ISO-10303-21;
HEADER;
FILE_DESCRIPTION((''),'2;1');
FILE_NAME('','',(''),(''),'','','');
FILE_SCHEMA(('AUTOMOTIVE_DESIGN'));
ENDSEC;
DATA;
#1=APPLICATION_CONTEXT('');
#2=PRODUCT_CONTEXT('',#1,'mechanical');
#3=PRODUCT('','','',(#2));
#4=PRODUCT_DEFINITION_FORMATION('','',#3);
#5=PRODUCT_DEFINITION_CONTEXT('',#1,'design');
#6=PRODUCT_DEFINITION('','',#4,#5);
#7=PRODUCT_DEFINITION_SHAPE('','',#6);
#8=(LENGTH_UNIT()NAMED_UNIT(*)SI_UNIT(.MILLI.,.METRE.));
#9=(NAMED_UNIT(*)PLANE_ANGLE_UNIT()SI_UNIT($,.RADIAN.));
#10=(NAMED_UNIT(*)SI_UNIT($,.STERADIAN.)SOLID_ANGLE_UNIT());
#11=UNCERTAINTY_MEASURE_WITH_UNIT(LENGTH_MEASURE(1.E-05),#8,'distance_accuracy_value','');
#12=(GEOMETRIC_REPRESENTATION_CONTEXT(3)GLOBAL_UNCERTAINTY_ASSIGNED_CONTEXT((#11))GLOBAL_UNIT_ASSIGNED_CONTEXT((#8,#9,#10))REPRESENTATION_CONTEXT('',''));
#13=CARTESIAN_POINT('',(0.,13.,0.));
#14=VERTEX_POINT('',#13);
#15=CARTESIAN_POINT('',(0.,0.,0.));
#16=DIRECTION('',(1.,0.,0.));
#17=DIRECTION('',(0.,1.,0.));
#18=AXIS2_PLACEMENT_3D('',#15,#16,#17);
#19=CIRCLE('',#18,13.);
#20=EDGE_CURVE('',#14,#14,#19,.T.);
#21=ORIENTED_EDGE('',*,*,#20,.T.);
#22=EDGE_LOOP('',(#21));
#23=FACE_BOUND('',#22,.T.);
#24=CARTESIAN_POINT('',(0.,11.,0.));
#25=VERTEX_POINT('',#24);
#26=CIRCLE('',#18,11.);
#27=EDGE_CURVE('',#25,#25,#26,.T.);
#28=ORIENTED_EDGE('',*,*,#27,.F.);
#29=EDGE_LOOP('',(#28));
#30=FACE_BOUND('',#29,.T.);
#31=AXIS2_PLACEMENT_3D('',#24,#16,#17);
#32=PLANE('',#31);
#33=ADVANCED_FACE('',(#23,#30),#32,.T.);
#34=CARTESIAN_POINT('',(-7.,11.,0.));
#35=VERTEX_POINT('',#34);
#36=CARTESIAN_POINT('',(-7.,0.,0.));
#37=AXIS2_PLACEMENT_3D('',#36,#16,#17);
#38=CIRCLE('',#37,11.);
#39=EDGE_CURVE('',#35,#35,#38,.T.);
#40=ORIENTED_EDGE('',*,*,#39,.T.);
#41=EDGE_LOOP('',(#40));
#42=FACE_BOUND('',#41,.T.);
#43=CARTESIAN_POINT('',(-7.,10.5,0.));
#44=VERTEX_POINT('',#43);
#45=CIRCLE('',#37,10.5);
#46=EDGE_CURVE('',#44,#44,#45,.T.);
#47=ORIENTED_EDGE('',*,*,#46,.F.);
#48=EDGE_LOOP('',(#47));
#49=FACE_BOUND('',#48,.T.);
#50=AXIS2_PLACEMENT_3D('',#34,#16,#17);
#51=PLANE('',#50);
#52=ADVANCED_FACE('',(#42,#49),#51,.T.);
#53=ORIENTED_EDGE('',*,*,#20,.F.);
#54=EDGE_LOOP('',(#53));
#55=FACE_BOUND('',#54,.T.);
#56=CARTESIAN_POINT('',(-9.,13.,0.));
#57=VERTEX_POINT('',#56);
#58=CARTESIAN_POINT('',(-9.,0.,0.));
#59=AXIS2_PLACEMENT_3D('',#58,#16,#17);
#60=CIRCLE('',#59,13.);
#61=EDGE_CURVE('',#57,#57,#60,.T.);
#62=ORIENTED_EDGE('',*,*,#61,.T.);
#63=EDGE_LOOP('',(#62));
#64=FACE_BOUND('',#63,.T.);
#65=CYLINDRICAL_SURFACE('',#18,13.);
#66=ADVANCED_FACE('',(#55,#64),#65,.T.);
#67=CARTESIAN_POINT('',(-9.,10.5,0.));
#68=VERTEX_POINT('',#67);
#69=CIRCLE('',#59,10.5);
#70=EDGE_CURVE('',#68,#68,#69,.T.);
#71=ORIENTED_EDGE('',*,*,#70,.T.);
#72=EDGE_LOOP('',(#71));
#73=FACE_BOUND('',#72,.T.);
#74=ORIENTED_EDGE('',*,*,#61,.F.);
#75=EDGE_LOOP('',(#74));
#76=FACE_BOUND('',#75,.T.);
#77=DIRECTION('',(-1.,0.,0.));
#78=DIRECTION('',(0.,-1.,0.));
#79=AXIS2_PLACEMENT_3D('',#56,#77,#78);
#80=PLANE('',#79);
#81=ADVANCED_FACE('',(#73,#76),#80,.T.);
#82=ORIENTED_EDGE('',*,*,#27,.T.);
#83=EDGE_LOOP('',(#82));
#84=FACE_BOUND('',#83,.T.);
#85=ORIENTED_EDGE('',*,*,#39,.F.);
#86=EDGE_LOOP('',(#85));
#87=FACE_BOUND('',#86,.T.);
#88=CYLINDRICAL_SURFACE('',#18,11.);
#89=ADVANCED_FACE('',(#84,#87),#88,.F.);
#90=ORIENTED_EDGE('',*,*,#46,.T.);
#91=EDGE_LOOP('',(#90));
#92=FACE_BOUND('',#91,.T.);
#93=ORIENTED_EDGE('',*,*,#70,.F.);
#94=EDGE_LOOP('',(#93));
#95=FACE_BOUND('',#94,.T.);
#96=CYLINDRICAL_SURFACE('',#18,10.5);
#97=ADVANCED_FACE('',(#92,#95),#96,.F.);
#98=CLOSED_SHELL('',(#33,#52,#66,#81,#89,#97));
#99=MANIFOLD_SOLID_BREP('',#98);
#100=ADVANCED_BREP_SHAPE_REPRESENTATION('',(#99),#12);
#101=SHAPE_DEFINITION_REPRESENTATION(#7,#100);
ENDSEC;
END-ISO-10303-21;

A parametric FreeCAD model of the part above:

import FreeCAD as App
import Part
import Sketcher

V = App.Vector
Q = App.Units.Quantity


def add_polygon(sketch, points):
    """Adds a closed chain of lines whose ends are joined by coincident constraints."""
    first, n = sketch.GeometryCount, len(points)
    for a, b in zip(points, points[1:] + points[:1]):
        sketch.addGeometry(Part.LineSegment(App.Vector(*a, 0), App.Vector(*b, 0)), False)
    for i in range(n):
        sketch.addConstraint(Sketcher.Constraint("Coincident", first + i, 2, first + (i + 1) % n, 1))

doc = App.newDocument("Part")
params = doc.addObject("Spreadsheet::Sheet", "Params")
for row, (alias, value) in enumerate([
    ("sketch1_width", "9 mm"),
    ("sketch1_width2", "2 mm"),
    ("sketch1_height", "2.5 mm"),
    ("revolution_angle", "360 deg"),
], start=1):
    params.set(f"A{row}", alias)
    params.set(f"B{row}", "=" + value)
    params.setAlias(f"B{row}", alias)

body = doc.addObject("PartDesign::Body", "Body")

# Sketch on XY plane
sketch1 = body.newObject("Sketcher::SketchObject", "Sketch")
sketch1.AttachmentSupport = (doc.getObject("XY_Plane"), [""])
sketch1.MapMode = "FlatFace"
add_polygon(sketch1, [(0, 11), (0, 13), (-9, 13), (-9, 10.5), (-7, 10.5), (-7, 11)])  # lines 0-5
sketch1.addConstraint(Sketcher.Constraint("Vertical", 0))
sketch1.addConstraint(Sketcher.Constraint("Horizontal", 1))
sketch1.addConstraint(Sketcher.Constraint("Vertical", 2))
sketch1.addConstraint(Sketcher.Constraint("Horizontal", 3))
sketch1.addConstraint(Sketcher.Constraint("Vertical", 4))
sketch1.addConstraint(Sketcher.Constraint("Horizontal", 5))
sketch1.addConstraint(Sketcher.Constraint("PointOnObject", 0, 2, -2))
sketch1.addConstraint(Sketcher.Constraint("Equal", 3, 0))
sketch1.addConstraint(Sketcher.Constraint("DistanceX", 1, 2, 1, 1, Q("9 mm")))
sketch1.addConstraint(Sketcher.Constraint("DistanceX", 3, 1, 3, 2, Q("2 mm")))
sketch1.addConstraint(Sketcher.Constraint("DistanceY", 2, 2, 2, 1, Q("2.5 mm")))
sketch1.addConstraint(Sketcher.Constraint("DistanceY", -1, 1, 0, 2, Q("13 mm")))
sketch1.setExpression("Constraints[14]", "Params.sketch1_width")
sketch1.setExpression("Constraints[15]", "Params.sketch1_width2")
sketch1.setExpression("Constraints[16]", "Params.sketch1_height")
revolution = body.newObject("PartDesign::Revolution", "Revolution")
revolution.Profile = sketch1
revolution.ReferenceAxis = (sketch1, ["H_Axis"])
revolution.setExpression("Angle", "Params.revolution_angle")

doc.recompute()
